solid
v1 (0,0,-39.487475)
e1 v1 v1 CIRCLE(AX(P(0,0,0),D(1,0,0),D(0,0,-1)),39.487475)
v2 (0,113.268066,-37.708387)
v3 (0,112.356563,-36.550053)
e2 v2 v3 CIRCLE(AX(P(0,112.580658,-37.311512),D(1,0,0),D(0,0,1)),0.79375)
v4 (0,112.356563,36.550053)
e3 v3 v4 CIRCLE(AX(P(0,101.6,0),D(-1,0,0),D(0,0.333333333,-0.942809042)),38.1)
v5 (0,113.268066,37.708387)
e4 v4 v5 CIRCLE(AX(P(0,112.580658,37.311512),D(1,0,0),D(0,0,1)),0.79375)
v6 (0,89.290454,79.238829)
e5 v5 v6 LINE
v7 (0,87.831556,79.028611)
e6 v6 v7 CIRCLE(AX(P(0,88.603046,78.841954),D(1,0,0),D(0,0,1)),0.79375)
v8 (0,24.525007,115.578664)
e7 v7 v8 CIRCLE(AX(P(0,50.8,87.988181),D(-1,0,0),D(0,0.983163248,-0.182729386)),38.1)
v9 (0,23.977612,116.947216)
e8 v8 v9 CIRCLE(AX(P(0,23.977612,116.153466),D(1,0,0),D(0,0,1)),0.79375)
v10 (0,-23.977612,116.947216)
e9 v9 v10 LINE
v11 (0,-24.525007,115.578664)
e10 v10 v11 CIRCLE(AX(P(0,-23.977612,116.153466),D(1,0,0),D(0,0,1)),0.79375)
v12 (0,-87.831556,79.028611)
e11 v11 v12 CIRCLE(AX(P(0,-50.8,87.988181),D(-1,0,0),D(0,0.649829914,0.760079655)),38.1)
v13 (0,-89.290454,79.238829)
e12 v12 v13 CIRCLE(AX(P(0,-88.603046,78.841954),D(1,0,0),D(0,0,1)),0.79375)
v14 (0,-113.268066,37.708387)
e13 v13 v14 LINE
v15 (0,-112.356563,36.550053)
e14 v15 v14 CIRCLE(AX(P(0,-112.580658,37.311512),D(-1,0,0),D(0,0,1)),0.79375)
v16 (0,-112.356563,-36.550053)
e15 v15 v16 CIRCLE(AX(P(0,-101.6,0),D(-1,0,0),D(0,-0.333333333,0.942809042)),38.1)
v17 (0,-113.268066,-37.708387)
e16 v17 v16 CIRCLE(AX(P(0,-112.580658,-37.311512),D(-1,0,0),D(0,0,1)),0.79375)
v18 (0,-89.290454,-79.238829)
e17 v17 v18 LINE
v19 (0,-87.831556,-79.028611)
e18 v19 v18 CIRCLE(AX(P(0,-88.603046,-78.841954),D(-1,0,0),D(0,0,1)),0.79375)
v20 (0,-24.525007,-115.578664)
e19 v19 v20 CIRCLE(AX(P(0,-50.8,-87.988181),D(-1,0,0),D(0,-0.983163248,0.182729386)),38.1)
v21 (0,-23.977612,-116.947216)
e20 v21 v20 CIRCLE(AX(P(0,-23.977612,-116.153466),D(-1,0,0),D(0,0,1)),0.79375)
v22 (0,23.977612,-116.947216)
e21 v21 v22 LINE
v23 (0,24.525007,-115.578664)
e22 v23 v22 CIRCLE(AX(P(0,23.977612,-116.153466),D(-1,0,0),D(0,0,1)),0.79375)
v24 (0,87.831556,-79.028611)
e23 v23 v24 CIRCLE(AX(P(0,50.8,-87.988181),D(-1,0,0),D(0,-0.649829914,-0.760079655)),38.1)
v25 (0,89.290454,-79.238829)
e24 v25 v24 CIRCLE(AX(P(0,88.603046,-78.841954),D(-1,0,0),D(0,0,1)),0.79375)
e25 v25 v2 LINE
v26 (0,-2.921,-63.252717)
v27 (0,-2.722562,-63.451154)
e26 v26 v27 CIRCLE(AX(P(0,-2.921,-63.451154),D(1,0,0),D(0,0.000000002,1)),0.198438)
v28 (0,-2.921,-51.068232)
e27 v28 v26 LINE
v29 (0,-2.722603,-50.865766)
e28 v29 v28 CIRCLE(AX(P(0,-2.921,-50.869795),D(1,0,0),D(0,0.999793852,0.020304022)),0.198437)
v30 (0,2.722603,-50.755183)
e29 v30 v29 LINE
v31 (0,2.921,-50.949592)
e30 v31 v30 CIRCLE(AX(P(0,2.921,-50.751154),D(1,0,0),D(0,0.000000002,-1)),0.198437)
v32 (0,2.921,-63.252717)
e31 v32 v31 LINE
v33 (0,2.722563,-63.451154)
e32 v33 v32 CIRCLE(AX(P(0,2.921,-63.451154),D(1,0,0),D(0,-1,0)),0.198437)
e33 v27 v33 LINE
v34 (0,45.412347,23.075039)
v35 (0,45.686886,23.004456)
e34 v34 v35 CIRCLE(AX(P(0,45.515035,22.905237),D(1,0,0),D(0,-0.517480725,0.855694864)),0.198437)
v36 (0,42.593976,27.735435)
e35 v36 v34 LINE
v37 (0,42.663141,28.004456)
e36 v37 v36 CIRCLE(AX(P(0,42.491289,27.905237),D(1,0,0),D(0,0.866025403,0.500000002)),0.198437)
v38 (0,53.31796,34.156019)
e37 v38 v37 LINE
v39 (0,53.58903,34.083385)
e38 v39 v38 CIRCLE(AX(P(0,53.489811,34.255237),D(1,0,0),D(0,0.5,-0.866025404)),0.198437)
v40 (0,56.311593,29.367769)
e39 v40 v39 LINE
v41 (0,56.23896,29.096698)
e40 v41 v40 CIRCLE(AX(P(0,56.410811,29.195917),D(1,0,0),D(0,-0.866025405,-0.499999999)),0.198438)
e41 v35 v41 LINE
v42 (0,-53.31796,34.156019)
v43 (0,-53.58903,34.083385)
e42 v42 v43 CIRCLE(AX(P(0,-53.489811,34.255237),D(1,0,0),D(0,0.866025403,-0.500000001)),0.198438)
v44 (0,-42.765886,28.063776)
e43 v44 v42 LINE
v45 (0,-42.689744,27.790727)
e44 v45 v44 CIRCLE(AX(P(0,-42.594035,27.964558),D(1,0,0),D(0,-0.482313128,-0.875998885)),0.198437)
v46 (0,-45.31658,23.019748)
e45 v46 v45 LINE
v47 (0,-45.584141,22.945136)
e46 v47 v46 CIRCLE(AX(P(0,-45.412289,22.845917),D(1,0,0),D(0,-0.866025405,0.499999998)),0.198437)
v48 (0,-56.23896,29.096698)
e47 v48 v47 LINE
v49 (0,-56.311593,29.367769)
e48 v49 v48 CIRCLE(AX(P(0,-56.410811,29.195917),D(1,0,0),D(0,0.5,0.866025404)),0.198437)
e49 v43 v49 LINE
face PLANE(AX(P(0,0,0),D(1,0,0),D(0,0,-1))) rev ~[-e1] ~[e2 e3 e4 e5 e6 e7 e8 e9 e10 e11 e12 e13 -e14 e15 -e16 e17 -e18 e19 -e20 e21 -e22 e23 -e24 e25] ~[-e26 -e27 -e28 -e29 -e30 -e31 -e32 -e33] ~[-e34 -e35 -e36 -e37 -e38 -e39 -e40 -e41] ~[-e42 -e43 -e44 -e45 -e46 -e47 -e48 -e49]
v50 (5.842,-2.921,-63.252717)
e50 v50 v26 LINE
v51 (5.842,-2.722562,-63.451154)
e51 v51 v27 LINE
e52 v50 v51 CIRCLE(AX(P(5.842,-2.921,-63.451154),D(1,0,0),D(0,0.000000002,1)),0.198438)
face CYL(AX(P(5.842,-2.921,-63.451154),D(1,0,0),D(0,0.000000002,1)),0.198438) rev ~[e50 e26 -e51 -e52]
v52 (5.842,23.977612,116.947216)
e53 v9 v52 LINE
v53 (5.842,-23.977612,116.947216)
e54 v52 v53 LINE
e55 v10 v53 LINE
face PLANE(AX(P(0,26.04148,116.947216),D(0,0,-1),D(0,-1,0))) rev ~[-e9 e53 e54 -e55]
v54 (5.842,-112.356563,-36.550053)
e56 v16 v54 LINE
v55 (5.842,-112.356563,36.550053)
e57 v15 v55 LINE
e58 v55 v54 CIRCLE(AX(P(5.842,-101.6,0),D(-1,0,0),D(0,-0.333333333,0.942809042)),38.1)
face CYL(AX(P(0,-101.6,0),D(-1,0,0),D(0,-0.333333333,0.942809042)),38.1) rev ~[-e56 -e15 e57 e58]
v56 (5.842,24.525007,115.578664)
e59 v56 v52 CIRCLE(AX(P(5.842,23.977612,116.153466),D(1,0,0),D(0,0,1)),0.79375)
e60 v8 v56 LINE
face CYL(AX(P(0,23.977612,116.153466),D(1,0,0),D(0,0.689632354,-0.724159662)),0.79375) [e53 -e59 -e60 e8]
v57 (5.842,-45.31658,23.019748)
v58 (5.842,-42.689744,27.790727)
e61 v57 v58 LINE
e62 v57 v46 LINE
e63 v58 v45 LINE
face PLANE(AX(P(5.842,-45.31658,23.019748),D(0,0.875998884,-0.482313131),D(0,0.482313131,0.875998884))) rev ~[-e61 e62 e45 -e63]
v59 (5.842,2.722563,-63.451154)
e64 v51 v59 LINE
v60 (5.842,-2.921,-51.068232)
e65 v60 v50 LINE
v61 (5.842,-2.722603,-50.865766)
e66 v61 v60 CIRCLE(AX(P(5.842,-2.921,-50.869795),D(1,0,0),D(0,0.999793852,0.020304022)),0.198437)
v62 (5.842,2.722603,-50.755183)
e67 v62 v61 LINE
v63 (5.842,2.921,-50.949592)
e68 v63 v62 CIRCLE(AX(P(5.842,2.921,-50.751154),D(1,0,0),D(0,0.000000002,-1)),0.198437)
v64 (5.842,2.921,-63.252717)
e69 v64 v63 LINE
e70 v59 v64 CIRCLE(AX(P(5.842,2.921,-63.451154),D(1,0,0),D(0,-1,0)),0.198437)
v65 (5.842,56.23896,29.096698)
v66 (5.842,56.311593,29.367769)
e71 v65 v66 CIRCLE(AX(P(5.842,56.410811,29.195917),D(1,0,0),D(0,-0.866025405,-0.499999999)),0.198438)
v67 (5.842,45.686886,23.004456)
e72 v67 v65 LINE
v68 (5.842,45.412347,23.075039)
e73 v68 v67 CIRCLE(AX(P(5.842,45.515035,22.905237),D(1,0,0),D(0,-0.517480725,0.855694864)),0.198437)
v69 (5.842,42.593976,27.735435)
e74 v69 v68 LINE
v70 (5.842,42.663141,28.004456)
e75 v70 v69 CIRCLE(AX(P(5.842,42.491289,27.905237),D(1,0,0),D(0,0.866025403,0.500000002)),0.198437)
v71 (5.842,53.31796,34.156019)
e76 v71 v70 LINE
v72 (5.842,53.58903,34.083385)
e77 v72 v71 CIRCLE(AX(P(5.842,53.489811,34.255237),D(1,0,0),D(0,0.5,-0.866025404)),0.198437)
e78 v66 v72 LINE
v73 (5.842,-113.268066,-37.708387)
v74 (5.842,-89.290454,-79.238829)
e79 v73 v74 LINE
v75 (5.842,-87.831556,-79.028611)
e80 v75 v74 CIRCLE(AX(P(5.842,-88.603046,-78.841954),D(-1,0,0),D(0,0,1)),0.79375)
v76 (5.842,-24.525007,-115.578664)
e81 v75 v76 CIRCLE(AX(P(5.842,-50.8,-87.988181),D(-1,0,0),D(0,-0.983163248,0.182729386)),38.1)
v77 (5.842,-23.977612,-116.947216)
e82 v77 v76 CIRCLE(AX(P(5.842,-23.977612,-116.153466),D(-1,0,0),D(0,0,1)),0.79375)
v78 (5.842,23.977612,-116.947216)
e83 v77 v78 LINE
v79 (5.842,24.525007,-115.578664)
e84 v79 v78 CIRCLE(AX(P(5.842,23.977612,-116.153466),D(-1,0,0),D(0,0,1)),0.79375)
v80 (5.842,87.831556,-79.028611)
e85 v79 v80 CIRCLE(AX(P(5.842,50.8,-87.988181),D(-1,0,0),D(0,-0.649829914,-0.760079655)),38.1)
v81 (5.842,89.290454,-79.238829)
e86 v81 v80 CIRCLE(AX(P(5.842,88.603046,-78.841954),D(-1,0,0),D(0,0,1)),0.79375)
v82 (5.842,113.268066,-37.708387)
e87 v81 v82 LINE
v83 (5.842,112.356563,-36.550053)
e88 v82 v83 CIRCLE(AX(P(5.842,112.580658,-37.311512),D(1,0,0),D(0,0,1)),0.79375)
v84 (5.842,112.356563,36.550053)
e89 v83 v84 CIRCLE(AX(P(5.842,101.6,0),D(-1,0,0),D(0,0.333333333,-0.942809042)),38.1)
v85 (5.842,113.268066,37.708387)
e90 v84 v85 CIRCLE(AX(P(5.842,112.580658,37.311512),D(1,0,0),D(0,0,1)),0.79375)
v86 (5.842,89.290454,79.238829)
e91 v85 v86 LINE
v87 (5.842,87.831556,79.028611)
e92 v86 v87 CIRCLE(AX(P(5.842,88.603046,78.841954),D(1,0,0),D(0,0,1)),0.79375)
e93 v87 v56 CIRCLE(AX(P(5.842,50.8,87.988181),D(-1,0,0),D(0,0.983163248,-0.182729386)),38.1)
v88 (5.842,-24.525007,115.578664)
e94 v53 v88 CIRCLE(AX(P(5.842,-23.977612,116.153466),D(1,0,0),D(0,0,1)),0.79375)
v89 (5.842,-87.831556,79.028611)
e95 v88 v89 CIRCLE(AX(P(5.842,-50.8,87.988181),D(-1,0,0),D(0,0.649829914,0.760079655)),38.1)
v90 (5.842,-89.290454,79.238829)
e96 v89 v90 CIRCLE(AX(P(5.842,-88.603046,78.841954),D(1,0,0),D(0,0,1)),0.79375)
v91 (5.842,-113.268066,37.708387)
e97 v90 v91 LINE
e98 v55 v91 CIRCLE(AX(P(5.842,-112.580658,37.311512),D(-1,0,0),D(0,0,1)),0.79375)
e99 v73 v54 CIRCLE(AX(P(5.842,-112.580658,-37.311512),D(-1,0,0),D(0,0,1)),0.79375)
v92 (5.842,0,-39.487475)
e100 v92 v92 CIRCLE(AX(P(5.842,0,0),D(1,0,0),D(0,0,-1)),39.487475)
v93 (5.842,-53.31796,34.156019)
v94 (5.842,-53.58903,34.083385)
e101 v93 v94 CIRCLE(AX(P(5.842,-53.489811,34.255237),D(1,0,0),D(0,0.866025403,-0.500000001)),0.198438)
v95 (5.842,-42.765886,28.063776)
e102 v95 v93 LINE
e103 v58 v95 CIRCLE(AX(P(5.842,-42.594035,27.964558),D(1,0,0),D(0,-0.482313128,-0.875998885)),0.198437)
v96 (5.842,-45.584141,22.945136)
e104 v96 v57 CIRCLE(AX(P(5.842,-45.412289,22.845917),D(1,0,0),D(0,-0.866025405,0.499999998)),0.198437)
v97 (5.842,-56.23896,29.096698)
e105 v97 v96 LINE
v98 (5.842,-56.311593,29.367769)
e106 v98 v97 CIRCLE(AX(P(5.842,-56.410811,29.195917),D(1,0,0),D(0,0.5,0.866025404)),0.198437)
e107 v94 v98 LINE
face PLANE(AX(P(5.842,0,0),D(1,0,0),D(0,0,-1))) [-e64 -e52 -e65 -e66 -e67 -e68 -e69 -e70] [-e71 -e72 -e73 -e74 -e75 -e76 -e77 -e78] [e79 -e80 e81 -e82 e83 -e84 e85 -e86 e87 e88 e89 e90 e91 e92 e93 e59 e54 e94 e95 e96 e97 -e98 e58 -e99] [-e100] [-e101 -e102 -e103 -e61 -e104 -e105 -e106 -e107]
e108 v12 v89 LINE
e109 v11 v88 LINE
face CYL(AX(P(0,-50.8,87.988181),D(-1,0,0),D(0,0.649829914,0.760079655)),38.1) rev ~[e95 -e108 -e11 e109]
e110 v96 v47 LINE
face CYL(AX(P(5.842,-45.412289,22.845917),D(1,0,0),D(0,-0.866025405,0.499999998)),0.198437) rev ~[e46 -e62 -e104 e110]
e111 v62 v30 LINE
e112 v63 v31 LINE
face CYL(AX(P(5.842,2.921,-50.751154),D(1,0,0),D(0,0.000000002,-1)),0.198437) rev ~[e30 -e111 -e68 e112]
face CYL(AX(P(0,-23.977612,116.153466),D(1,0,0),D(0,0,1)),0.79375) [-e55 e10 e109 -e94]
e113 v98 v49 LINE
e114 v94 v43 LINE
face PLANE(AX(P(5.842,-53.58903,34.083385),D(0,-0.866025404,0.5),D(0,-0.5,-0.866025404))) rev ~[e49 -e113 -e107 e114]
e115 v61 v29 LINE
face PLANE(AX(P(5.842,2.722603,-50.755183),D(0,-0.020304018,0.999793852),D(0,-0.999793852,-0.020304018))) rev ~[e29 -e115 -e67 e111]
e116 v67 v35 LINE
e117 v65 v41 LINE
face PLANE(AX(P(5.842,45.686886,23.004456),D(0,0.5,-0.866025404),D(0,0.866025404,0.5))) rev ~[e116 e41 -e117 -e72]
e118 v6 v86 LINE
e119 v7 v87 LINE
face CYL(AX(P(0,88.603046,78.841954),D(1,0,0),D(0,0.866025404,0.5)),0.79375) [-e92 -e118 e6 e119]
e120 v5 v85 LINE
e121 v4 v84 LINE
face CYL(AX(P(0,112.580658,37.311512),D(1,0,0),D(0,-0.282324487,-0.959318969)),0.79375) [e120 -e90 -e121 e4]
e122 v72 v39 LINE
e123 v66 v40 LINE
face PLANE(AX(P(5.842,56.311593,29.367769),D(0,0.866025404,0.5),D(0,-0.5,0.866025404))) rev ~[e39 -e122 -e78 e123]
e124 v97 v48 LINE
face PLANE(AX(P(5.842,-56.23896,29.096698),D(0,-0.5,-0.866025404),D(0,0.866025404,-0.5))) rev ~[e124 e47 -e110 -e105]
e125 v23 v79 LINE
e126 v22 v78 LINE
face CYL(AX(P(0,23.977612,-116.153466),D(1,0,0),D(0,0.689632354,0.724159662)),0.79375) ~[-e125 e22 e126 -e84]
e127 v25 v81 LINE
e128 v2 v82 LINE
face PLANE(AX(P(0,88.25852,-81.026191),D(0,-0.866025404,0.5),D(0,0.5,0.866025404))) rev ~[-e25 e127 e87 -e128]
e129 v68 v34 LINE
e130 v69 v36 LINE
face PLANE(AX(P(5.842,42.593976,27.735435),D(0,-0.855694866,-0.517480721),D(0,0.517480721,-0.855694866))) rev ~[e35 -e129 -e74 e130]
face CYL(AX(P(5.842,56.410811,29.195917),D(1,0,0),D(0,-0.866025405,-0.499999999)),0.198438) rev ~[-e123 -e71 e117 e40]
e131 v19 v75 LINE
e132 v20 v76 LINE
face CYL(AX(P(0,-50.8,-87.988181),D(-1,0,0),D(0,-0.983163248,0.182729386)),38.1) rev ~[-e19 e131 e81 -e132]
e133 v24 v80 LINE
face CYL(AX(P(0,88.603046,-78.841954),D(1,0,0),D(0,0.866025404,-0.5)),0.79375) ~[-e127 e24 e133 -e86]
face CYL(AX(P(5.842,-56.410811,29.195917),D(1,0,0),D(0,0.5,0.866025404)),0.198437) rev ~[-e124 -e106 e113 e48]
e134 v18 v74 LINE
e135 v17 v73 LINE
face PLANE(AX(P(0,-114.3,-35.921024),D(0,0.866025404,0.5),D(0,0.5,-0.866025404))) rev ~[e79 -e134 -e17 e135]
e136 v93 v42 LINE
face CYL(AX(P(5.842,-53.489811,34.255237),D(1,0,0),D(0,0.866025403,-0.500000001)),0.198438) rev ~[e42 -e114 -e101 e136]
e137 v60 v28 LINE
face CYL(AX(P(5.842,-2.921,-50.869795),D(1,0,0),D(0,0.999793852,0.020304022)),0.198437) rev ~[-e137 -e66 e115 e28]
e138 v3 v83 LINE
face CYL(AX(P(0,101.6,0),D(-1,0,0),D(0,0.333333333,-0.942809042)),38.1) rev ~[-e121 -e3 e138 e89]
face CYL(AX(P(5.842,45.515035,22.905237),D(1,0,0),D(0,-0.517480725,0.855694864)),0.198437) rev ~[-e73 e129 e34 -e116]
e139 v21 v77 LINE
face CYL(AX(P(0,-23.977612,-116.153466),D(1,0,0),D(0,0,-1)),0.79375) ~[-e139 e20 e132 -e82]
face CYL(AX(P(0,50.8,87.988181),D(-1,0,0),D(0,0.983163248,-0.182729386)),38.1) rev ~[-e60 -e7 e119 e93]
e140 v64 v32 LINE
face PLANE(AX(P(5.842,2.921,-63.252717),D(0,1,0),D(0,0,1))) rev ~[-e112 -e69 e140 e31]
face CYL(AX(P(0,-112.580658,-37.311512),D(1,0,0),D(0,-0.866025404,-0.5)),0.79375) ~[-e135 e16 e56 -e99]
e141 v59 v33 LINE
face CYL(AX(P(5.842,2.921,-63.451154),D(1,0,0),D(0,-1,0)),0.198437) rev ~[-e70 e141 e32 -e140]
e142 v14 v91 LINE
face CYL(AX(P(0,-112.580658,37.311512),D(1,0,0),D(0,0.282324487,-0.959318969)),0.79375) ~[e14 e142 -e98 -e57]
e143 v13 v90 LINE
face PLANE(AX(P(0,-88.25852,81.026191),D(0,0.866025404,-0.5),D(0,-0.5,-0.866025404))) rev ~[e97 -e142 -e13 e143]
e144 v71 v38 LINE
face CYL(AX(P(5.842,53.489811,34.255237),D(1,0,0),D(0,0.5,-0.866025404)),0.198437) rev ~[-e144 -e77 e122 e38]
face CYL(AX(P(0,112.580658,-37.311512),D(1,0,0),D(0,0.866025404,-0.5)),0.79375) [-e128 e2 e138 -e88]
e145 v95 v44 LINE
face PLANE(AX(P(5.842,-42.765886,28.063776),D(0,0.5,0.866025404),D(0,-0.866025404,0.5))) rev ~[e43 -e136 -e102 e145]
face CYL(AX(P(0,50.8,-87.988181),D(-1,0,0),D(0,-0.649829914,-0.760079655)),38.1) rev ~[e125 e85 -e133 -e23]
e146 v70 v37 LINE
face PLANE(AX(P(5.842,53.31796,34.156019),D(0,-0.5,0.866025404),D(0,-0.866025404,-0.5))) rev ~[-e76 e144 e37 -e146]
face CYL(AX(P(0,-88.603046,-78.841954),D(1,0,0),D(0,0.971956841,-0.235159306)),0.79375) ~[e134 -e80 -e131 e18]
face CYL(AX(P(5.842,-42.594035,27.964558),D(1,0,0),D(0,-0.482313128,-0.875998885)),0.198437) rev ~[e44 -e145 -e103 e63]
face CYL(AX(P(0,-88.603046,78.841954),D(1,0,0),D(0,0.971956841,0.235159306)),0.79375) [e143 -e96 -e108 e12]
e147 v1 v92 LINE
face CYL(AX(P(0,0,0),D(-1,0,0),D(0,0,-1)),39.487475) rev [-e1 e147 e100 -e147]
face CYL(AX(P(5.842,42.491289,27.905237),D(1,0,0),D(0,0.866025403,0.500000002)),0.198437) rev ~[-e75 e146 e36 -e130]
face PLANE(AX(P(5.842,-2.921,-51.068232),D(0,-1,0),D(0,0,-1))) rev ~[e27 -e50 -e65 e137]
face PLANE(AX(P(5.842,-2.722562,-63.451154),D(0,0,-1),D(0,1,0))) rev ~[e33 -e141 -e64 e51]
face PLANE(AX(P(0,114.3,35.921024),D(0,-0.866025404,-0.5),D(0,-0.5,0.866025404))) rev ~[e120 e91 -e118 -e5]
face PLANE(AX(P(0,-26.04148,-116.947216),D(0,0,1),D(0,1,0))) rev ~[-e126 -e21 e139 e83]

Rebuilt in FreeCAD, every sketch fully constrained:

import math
import FreeCAD as App
import Part
import Sketcher

V = App.Vector
Q = App.Units.Quantity


def edges_at(feature, points):
    """Names of the edges that pass closest to the given points."""
    edges = feature.Shape.Edges
    near = lambda p: min(range(len(edges)), key=lambda i: edges[i].distToShape(Part.Vertex(*p))[0])
    return sorted({f"Edge{near(p) + 1}" for p in points})

doc = App.newDocument("Part")
body = doc.addObject("PartDesign::Body", "Body")

sketch1 = doc.addObject("Sketcher::SketchObject", "Sketch")
body.addObject(sketch1)
sketch1.AttachmentSupport = (doc.YZ_Plane, [""])
sketch1.MapMode = "FlatFace"
sketch1.addGeometry([
    Part.LineSegment(V(88, -81, 0), V(114, -36, 0)),
    Part.ArcOfCircle(Part.Circle(V(102, 0, 0), V(0, 0, 1), 38), math.radians(71), math.radians(289)),
    Part.LineSegment(V(114, 36, 0), V(88, 81, 0)),
    Part.ArcOfCircle(Part.Circle(V(51, 88, 0), V(0, 0, 1), 38), math.radians(131), math.radians(349)),
    Part.LineSegment(V(26, 117, 0), V(-26, 117, 0)),
    Part.ArcOfCircle(Part.Circle(V(-51, 88, 0), V(0, 0, 1), 38), math.radians(-169), math.radians(49)),
    Part.LineSegment(V(-88, 81, 0), V(-114, 36, 0)),
    Part.ArcOfCircle(Part.Circle(V(-102, 0, 0), V(0, 0, 1), 38), math.radians(-109), math.radians(109)),
    Part.LineSegment(V(-114, -36, 0), V(-88, -81, 0)),
    Part.ArcOfCircle(Part.Circle(V(-51, -88, 0), V(0, 0, 1), 38), math.radians(-49), math.radians(169)),
    Part.LineSegment(V(-26, -117, 0), V(26, -117, 0)),
    Part.ArcOfCircle(Part.Circle(V(51, -88, 0), V(0, 0, 1), 38), math.radians(11), math.radians(229)),
    Part.Circle(V(0, 0, 0), V(0, 0, 1), 39),
], False)
sketch1.addConstraint([
    Sketcher.Constraint("Coincident", 0, 2, 1, 2),
    Sketcher.Constraint("Coincident", 1, 1, 2, 1),
    Sketcher.Constraint("Coincident", 2, 2, 3, 2),
    Sketcher.Constraint("Coincident", 3, 1, 4, 1),
    Sketcher.Constraint("Coincident", 4, 2, 5, 2),
    Sketcher.Constraint("Coincident", 5, 1, 6, 1),
    Sketcher.Constraint("Coincident", 6, 2, 7, 2),
    Sketcher.Constraint("Coincident", 7, 1, 8, 1),
    Sketcher.Constraint("Coincident", 8, 2, 9, 2),
    Sketcher.Constraint("Coincident", 9, 1, 10, 1),
    Sketcher.Constraint("Coincident", 10, 2, 11, 2),
    Sketcher.Constraint("Coincident", 11, 1, 0, 1),
    Sketcher.Constraint("Horizontal", 4),
    Sketcher.Constraint("Horizontal", 10),
    Sketcher.Constraint("Coincident", 12, 3, -1, 1),
    Sketcher.Constraint("Equal", 1, 3),
    Sketcher.Constraint("Equal", 3, 5),
    Sketcher.Constraint("Equal", 5, 7),
    Sketcher.Constraint("Equal", 7, 9),
    Sketcher.Constraint("Equal", 9, 11),
    Sketcher.Constraint("Symmetric", 1, 3, 7, 3, -1, 1),
    Sketcher.Constraint("Symmetric", 3, 3, 9, 3, -1, 1),
    Sketcher.Constraint("Symmetric", 5, 3, 11, 3, -1, 1),
    Sketcher.Constraint("Symmetric", 3, 3, 5, 3, -2),
    Sketcher.Constraint("Symmetric", 1, 1, 6, 2, -2),
    Sketcher.Constraint("Parallel", 0, 6),
    Sketcher.Constraint("Parallel", 2, 8),
    Sketcher.Constraint("Horizontal", 2, 2, 5, 1),
    Sketcher.Constraint("Horizontal", 0, 2, 7, 1),
    Sketcher.Constraint("Vertical", 0, 2, 1, 1),
    Sketcher.Constraint("Vertical", 4, 2, 9, 1),
    Sketcher.Constraint("Radius", 1, Q("1.5 in")),
    Sketcher.Constraint("DistanceX", -1, 1, 1, 3, Q("4 in")),
    Sketcher.Constraint("DistanceX", -1, 1, 3, 3, Q("2 in")),
    Sketcher.Constraint("Angle", 0, Q("60 deg")),
    Sketcher.Constraint("DistanceX", -1, 1, 0, 2, Q("4.5 in")),
    Sketcher.Constraint("DistanceX", 4, 2, 2, 2, Q("4.5 in")),
    Sketcher.Constraint("Diameter", 12, 78.97495),
    Sketcher.Constraint("DistanceX", 4, 2, 4, 1, 52.082961),
])
pad1 = doc.addObject("PartDesign::Pad", "Pad")
body.addObject(pad1)
pad1.Profile = sketch1
pad1.Length = Q("0.23 in")
doc.recompute()

fillet = doc.addObject("PartDesign::Fillet", "Fillet")
body.addObject(fillet)
fillet.Base = (pad1, edges_at(pad1, [
    (2.921, 88.259, 81.026),
    (2.921, 114.3, 35.921),
    (2.921, 114.3, -35.921),
    (2.921, 88.259, -81.026),
    (2.921, 26.041, -116.947),
    (2.921, -26.041, -116.947),
    (2.921, -88.259, -81.026),
    (2.921, -114.3, -35.921),
    (2.921, -114.3, 35.921),
    (2.921, -88.259, 81.026),
    (2.921, -26.041, 116.947),
    (2.921, 26.041, 116.947),
]))
fillet.Radius = Q("0.03125 in")

sketch2 = doc.addObject("Sketcher::SketchObject", "Sketch001")
body.addObject(sketch2)
sketch2.AttachmentSupport = (doc.YZ_Plane, [""])
sketch2.MapMode = "FlatFace"
sketch2.AttachmentOffset = App.Placement(V(0, 0, 0.23 * 25.4), App.Rotation())
sketch2.addGeometry([
    Part.LineSegment(V(45.69, 23, 0), V(56.24, 29.1, 0)),
    Part.ArcOfCircle(Part.Circle(V(56.41, 29.2, 0), V(0, 0, 1), 0.2), math.radians(-150), math.radians(120)),
    Part.LineSegment(V(56.31, 29.37, 0), V(53.59, 34.08, 0)),
    Part.ArcOfCircle(Part.Circle(V(53.49, 34.26, 0), V(0, 0, 1), 0.2), math.radians(-60), math.radians(210)),
    Part.LineSegment(V(53.32, 34.16, 0), V(42.66, 28, 0)),
    Part.ArcOfCircle(Part.Circle(V(42.49, 27.91, 0), V(0, 0, 1), 0.2), math.radians(30), math.radians(301)),
    Part.LineSegment(V(42.59, 27.74, 0), V(45.41, 23.08, 0)),
    Part.ArcOfCircle(Part.Circle(V(45.52, 22.91, 0), V(0, 0, 1), 0.2), math.radians(121), math.radians(390)),
], False)
sketch2.addConstraint([
    Sketcher.Constraint("Coincident", 0, 2, 1, 1),
    Sketcher.Constraint("Coincident", 1, 2, 2, 1),
    Sketcher.Constraint("Coincident", 2, 2, 3, 1),
    Sketcher.Constraint("Coincident", 3, 2, 4, 1),
    Sketcher.Constraint("Coincident", 4, 2, 5, 1),
    Sketcher.Constraint("Coincident", 5, 2, 6, 1),
    Sketcher.Constraint("Coincident", 6, 2, 7, 1),
    Sketcher.Constraint("Coincident", 7, 2, 0, 1),
    Sketcher.Constraint("Equal", 1, 3),
    Sketcher.Constraint("Equal", 3, 5),
    Sketcher.Constraint("Equal", 5, 7),
    Sketcher.Constraint("Perpendicular", 0, 2),
    Sketcher.Constraint("Perpendicular", 2, 4),
    Sketcher.Constraint("Angle", 0, Q("30 deg")),
    Sketcher.Constraint("DistanceY", 5, 3, 3, 3, Q("0.25 in")),
    Sketcher.Constraint("Distance", 4, Q("0.484375 in")),
    Sketcher.Constraint("DistanceX", 3, 3, 1, 3, Q("0.115 in")),
    Sketcher.Constraint("DistanceX", 3, 2, 0, 2, Q("0.115 in")),
    Sketcher.Constraint("Radius", 1, 0.198437),
    Sketcher.Constraint("DistanceY", -1, 1, 0, 2, 29.096698),
    Sketcher.Constraint("DistanceY", 7, 3, 5, 3, 5.0),
    Sketcher.Constraint("DistanceY", 1, 3, 3, 2, 4.960102),
    Sketcher.Constraint("DistanceY", 5, 2, 5, 3, 0.169802),
    Sketcher.Constraint("DistanceY", 7, 3, 6, 2, 0.169802),
    Sketcher.Constraint("DistanceY", 7, 2, 4, 2, 5.0),
    Sketcher.Constraint("Distance", 6, 5.44633),
    Sketcher.Constraint("DistanceX", -1, 1, 1, 3, 56.410811),
    Sketcher.Constraint("DistanceY", -1, 1, 1, 2, 29.367769),
])
pocket1 = doc.addObject("PartDesign::Pocket", "Pocket")
body.addObject(pocket1)
pocket1.Profile = sketch2
pocket1.Type = "ThroughAll"
doc.recompute()

polarpattern = doc.addObject("PartDesign::PolarPattern", "PolarPattern")
body.addObject(polarpattern)
polarpattern.Originals = [pocket1]
polarpattern.Axis = (doc.X_Axis, [""])
polarpattern.Angle = 360
polarpattern.Occurrences = 3
body.Tip = polarpattern

doc.recompute()
